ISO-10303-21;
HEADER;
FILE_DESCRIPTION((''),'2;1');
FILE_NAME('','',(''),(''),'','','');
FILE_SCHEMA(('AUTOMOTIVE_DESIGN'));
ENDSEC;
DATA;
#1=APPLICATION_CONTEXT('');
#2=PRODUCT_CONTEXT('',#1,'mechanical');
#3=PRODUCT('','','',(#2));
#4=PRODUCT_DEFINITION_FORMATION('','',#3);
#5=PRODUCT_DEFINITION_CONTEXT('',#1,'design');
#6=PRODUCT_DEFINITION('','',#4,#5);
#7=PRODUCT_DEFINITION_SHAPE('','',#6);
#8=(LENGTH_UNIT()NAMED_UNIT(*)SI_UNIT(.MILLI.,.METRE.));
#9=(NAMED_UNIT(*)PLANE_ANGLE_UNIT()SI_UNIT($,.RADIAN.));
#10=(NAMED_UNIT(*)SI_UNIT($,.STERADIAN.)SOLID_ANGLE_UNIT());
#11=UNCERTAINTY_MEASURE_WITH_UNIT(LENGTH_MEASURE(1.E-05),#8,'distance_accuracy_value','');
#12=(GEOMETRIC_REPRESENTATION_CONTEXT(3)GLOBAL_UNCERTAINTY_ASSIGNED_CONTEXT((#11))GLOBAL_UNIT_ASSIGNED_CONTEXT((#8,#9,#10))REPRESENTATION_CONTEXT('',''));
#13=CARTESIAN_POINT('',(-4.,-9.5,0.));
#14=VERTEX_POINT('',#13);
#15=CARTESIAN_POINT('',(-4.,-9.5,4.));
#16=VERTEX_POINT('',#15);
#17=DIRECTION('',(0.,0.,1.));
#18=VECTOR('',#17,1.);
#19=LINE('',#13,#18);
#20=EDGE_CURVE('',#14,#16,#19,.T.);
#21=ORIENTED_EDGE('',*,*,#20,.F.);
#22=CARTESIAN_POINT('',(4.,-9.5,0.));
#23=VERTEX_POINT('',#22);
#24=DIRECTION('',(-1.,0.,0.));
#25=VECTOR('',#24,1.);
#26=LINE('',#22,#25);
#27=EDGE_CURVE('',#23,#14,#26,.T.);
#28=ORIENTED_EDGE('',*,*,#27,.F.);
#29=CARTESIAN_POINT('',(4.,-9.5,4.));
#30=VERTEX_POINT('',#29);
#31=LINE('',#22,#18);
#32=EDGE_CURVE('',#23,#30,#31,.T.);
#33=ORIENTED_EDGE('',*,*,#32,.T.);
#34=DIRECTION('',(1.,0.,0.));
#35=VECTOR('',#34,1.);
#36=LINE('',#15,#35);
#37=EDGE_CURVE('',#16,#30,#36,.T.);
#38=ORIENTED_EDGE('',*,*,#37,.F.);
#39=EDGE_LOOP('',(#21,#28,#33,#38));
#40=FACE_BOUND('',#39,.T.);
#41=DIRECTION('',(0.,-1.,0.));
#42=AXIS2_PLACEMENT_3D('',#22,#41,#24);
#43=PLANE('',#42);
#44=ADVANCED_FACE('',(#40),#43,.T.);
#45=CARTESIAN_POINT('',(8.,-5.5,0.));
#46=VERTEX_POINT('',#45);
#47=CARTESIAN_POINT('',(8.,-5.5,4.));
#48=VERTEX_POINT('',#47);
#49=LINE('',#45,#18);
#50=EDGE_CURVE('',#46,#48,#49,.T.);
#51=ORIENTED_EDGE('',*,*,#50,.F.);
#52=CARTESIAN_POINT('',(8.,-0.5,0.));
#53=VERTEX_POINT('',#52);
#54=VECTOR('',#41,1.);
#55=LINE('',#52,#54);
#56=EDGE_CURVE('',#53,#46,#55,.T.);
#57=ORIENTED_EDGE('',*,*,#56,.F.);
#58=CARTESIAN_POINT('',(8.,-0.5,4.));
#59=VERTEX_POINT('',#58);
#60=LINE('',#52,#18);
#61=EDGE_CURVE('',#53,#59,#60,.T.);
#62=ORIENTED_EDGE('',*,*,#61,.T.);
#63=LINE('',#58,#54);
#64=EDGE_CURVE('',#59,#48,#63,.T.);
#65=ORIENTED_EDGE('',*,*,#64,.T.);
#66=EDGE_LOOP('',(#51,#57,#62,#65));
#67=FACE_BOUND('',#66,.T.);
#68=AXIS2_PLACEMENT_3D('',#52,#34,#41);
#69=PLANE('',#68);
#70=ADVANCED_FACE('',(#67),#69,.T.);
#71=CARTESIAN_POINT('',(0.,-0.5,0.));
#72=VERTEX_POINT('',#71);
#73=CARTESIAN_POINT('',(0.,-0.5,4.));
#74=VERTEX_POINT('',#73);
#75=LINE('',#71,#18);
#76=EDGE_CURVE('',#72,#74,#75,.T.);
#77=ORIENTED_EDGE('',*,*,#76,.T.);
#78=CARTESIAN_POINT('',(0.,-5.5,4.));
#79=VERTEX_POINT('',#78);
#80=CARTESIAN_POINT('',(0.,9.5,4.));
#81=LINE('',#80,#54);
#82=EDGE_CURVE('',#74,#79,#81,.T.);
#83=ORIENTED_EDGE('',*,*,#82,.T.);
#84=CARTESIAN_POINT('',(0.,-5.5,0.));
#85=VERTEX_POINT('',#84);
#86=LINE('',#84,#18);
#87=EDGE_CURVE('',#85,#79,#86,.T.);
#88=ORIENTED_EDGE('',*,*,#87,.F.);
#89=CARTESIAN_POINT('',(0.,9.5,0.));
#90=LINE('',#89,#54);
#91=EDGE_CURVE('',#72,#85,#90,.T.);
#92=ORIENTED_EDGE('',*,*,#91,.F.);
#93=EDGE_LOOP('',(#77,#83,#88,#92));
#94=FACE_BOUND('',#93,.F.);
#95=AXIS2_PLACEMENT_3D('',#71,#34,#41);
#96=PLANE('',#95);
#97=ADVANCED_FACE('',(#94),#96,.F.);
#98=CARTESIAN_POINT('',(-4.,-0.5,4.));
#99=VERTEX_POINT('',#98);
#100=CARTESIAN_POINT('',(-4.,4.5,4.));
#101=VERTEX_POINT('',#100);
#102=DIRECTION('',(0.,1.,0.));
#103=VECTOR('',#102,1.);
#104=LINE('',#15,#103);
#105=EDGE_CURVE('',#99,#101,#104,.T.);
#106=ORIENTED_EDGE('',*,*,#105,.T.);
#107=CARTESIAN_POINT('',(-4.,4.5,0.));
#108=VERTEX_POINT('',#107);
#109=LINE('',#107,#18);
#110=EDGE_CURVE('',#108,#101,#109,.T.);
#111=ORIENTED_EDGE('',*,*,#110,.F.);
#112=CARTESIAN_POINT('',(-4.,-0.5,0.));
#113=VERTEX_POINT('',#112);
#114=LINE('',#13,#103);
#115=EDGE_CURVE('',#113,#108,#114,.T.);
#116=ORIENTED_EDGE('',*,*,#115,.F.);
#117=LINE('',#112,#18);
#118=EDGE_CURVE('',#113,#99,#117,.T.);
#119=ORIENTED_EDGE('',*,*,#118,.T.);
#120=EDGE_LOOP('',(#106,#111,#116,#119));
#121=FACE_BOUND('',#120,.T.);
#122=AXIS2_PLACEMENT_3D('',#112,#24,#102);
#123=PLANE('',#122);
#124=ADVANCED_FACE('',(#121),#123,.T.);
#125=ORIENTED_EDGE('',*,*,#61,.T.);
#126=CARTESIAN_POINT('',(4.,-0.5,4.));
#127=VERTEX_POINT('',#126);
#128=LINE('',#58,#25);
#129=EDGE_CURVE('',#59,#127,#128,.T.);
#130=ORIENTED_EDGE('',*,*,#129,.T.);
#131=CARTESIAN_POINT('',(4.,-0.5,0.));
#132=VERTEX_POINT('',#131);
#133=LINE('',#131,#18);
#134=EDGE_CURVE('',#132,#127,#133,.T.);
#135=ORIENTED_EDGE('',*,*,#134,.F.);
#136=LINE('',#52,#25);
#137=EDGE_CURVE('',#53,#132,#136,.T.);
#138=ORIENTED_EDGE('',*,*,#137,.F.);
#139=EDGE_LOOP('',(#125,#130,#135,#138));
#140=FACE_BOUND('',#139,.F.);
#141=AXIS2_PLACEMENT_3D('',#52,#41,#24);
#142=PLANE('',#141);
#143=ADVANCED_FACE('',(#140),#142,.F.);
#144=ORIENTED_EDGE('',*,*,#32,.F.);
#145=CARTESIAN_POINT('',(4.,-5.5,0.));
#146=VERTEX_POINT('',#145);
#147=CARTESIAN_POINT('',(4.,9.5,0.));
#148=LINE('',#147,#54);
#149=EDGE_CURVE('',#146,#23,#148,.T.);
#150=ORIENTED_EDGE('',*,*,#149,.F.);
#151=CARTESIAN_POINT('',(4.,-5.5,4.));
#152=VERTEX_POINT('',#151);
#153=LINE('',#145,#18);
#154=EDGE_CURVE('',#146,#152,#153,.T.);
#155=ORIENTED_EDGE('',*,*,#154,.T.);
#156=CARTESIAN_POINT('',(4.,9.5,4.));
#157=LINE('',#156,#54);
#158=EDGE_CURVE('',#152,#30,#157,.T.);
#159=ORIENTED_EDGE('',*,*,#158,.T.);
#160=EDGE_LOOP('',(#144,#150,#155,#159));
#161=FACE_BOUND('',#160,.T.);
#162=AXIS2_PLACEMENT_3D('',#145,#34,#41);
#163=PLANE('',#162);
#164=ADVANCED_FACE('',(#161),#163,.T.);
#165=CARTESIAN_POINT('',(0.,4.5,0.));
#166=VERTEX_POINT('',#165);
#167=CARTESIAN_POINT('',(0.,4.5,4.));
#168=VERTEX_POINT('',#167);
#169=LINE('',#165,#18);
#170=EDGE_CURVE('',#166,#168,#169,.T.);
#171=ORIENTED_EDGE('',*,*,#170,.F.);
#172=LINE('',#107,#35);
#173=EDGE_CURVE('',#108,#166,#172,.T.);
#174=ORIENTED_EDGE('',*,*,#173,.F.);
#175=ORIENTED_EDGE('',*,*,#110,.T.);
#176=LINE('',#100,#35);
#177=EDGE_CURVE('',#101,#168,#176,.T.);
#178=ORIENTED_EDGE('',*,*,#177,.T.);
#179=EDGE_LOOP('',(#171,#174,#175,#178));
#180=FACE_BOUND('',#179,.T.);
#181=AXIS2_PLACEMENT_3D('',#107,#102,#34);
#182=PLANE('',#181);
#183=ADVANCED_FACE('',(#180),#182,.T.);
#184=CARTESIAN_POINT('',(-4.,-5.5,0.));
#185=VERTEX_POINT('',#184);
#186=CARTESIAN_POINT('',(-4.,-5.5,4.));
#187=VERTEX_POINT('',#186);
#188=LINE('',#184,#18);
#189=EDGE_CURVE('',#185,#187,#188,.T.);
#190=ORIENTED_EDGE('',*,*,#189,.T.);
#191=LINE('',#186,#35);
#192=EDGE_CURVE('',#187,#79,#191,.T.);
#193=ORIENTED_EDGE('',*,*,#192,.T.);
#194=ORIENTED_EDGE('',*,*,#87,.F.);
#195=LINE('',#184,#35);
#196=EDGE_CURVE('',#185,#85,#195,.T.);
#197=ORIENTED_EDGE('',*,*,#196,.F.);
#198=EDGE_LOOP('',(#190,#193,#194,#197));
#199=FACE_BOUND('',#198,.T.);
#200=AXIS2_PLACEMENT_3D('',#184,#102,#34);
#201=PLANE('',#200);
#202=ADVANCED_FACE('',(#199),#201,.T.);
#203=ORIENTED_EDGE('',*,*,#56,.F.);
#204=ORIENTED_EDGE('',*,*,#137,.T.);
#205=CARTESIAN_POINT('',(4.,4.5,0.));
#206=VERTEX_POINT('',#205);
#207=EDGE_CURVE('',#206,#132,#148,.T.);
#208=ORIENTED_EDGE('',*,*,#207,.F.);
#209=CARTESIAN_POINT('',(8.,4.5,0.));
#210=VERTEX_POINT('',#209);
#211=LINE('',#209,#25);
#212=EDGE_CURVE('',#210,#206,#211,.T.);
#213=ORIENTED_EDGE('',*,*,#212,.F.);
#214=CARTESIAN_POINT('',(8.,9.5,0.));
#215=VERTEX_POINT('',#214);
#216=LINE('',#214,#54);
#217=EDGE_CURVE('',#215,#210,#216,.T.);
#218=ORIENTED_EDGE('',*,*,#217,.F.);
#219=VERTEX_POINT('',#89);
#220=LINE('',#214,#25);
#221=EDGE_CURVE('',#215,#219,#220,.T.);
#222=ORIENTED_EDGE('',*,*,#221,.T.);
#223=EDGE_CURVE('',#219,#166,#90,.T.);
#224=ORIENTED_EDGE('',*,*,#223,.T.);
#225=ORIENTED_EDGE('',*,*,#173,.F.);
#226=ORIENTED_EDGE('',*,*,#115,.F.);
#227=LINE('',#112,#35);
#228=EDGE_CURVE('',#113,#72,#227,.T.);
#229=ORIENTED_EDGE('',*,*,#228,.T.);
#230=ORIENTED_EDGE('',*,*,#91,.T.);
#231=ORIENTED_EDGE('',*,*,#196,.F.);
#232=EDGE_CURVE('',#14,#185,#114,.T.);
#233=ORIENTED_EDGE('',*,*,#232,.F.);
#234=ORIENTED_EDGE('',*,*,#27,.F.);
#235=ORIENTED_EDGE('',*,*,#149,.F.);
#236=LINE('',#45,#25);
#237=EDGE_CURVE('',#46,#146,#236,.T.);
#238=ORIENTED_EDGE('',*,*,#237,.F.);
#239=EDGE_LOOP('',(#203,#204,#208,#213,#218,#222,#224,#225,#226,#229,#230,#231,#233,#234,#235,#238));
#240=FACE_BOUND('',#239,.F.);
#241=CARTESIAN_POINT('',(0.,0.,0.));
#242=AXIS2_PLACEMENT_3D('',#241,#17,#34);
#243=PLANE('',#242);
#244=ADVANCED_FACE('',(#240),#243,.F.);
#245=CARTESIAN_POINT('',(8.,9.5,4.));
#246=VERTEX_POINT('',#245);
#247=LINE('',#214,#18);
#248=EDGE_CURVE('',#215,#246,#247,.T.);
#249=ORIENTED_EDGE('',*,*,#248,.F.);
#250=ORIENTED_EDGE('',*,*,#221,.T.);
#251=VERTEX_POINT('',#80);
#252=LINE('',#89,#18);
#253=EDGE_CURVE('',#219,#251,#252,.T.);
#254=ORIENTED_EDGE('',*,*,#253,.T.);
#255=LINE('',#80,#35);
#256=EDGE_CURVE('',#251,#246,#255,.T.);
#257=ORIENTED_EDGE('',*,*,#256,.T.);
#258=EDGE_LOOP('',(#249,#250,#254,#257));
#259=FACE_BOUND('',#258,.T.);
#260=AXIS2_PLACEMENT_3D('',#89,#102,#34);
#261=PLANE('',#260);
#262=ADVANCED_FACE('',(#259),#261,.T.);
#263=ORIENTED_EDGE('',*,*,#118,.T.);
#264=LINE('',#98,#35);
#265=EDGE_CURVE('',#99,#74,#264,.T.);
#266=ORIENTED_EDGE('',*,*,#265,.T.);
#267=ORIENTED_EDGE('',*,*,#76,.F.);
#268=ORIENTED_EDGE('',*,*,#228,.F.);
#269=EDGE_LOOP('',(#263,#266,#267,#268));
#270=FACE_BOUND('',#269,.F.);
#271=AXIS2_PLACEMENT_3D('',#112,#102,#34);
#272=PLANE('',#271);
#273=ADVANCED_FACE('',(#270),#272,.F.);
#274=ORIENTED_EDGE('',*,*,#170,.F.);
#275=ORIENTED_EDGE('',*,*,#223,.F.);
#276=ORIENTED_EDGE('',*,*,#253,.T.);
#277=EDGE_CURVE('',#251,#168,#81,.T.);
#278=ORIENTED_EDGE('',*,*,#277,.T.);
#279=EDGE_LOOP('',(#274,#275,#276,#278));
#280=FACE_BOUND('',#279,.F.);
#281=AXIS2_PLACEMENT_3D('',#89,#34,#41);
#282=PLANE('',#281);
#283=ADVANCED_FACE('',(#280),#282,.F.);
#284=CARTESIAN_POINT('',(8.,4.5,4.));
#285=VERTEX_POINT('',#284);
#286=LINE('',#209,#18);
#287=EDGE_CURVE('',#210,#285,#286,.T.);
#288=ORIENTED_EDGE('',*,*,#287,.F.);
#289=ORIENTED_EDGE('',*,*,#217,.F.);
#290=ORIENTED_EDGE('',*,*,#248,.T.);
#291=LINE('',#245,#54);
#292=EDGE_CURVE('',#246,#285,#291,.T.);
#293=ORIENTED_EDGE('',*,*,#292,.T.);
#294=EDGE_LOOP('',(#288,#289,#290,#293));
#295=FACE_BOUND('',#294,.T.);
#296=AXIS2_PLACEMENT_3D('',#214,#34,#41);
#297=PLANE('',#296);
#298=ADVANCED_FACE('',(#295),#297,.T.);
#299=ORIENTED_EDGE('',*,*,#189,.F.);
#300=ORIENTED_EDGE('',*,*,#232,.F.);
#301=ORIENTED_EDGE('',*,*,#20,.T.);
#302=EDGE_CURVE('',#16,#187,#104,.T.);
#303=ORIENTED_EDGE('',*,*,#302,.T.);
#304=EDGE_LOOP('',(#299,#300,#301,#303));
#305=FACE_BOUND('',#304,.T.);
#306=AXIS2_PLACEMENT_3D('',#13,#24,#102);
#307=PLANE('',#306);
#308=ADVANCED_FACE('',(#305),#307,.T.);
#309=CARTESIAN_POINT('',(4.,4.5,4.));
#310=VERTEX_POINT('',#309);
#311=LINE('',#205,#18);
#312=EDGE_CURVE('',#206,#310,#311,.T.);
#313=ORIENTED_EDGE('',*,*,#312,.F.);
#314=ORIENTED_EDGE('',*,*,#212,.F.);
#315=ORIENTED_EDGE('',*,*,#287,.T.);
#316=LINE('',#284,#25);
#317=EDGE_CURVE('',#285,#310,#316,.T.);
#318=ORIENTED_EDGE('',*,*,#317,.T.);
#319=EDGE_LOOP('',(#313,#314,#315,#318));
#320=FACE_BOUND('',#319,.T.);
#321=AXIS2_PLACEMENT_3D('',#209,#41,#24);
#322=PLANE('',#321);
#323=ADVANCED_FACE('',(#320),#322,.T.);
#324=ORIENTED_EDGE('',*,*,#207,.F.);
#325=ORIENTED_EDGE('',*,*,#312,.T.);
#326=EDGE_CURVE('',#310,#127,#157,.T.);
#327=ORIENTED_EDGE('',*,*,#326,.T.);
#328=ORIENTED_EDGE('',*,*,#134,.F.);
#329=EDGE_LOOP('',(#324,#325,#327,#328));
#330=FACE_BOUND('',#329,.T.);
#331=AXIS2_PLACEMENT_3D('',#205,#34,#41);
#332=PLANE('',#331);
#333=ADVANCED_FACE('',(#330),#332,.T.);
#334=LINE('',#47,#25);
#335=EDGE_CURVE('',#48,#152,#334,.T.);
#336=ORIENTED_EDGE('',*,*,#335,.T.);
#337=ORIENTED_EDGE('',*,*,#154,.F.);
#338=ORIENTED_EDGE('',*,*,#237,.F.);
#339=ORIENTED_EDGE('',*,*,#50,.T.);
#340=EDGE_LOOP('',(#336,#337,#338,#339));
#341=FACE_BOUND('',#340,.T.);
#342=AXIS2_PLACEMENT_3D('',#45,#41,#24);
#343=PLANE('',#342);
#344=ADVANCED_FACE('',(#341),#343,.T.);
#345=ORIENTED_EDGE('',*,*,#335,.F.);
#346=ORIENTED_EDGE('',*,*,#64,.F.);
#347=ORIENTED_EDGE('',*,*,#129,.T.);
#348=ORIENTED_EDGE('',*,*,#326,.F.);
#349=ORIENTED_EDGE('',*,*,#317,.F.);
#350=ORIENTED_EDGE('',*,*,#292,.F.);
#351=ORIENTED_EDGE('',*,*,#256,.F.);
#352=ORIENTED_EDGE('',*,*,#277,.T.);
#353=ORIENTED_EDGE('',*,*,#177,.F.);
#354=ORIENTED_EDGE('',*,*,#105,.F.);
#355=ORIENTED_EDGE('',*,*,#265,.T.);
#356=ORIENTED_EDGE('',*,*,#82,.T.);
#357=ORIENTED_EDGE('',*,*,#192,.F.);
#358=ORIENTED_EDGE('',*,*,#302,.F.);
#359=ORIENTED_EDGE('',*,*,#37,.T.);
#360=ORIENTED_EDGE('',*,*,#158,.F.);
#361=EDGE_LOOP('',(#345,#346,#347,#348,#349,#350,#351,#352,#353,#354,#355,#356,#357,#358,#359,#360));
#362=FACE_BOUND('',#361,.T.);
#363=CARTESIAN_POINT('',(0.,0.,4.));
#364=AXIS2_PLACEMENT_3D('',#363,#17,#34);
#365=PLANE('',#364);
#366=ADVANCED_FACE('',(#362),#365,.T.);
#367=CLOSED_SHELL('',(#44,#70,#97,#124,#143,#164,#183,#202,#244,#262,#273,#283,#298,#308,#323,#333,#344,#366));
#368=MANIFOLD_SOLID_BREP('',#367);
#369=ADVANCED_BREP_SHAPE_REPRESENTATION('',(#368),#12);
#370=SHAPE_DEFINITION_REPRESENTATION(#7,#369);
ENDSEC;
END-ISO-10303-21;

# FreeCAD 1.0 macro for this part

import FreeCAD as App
import Part
import Sketcher
Q = App.Units.Quantity

doc = App.newDocument("Part")
body = doc.addObject("PartDesign::Body", "Body")

sketch1 = body.newObject("Sketcher::SketchObject", "Sketch")
sketch1.AttachmentSupport = (doc.getObject("XY_Plane"), [""])
sketch1.MapMode = "FlatFace"
sketch1.addGeometry([
    Part.LineSegment(App.Vector(0, 9.5, 0), App.Vector(0, 4.5, 0)),
    Part.LineSegment(App.Vector(0, 4.5, 0), App.Vector(-4, 4.5, 0)),
    Part.LineSegment(App.Vector(-4, 4.5, 0), App.Vector(-4, -0.5, 0)),
    Part.LineSegment(App.Vector(-4, -0.5, 0), App.Vector(0, -0.5, 0)),
    Part.LineSegment(App.Vector(0, -0.5, 0), App.Vector(0, -5.5, 0)),
    Part.LineSegment(App.Vector(0, -5.5, 0), App.Vector(-4, -5.5, 0)),
    Part.LineSegment(App.Vector(-4, -5.5, 0), App.Vector(-4, -9.5, 0)),
    Part.LineSegment(App.Vector(-4, -9.5, 0), App.Vector(4, -9.5, 0)),
    Part.LineSegment(App.Vector(4, -9.5, 0), App.Vector(4, -5.5, 0)),
    Part.LineSegment(App.Vector(4, -5.5, 0), App.Vector(8, -5.5, 0)),
    Part.LineSegment(App.Vector(8, -5.5, 0), App.Vector(8, -0.5, 0)),
    Part.LineSegment(App.Vector(8, -0.5, 0), App.Vector(4, -0.5, 0)),
    Part.LineSegment(App.Vector(4, -0.5, 0), App.Vector(4, 4.5, 0)),
    Part.LineSegment(App.Vector(4, 4.5, 0), App.Vector(8, 4.5, 0)),
    Part.LineSegment(App.Vector(8, 4.5, 0), App.Vector(8, 9.5, 0)),
    Part.LineSegment(App.Vector(8, 9.5, 0), App.Vector(0, 9.5, 0)),
], False)
sketch1.addConstraint([
    Sketcher.Constraint("Coincident", 0, 2, 1, 1),
    Sketcher.Constraint("Coincident", 1, 2, 2, 1),
    Sketcher.Constraint("Coincident", 2, 2, 3, 1),
    Sketcher.Constraint("Coincident", 3, 2, 4, 1),
    Sketcher.Constraint("Coincident", 4, 2, 5, 1),
    Sketcher.Constraint("Coincident", 5, 2, 6, 1),
    Sketcher.Constraint("Coincident", 6, 2, 7, 1),
    Sketcher.Constraint("Coincident", 7, 2, 8, 1),
    Sketcher.Constraint("Coincident", 8, 2, 9, 1),
    Sketcher.Constraint("Coincident", 9, 2, 10, 1),
    Sketcher.Constraint("Coincident", 10, 2, 11, 1),
    Sketcher.Constraint("Coincident", 11, 2, 12, 1),
    Sketcher.Constraint("Coincident", 12, 2, 13, 1),
    Sketcher.Constraint("Coincident", 13, 2, 14, 1),
    Sketcher.Constraint("Coincident", 14, 2, 15, 1),
    Sketcher.Constraint("Coincident", 15, 2, 0, 1),
    Sketcher.Constraint("Vertical", 0),
    Sketcher.Constraint("Horizontal", 1),
    Sketcher.Constraint("Vertical", 2),
    Sketcher.Constraint("Horizontal", 3),
    Sketcher.Constraint("Vertical", 4),
    Sketcher.Constraint("Horizontal", 5),
    Sketcher.Constraint("Vertical", 6),
    Sketcher.Constraint("Horizontal", 7),
    Sketcher.Constraint("Vertical", 8),
    Sketcher.Constraint("Horizontal", 9),
    Sketcher.Constraint("Vertical", 10),
    Sketcher.Constraint("Horizontal", 11),
    Sketcher.Constraint("Vertical", 12),
    Sketcher.Constraint("Horizontal", 13),
    Sketcher.Constraint("Vertical", 14),
    Sketcher.Constraint("Horizontal", 15),
    Sketcher.Constraint("Symmetric", 5, 2, 8, 2, -2),
    Sketcher.Constraint("Symmetric", 2, 2, 11, 2, -2),
    Sketcher.Constraint("PointOnObject", 0, 2, -2),
    Sketcher.Constraint("PointOnObject", 3, 2, -2),
    Sketcher.Constraint("Horizontal", 1, 2, 12, 2),
    Sketcher.Constraint("Vertical", 2, 2, 5, 2),
    Sketcher.Constraint("Vertical", 10, 2, 13, 2),
    Sketcher.Constraint("Equal", 5, 9),
    Sketcher.Constraint("Equal", 0, 2),
    Sketcher.Constraint("Equal", 2, 4),
    Sketcher.Constraint("Equal", 13, 6),
    Sketcher.Constraint("DistanceX", 1, 2, 1, 1, Q("4 mm")),
    Sketcher.Constraint("DistanceY", 0, 2, 0, 1, Q("5 mm")),
    Sketcher.Constraint("DistanceY", -1, 1, 0, 2, Q("4.5 mm")),
])
pad1 = body.newObject("PartDesign::Pad", "Pad")
pad1.Profile = sketch1
pad1.Length = 4

doc.recompute()
